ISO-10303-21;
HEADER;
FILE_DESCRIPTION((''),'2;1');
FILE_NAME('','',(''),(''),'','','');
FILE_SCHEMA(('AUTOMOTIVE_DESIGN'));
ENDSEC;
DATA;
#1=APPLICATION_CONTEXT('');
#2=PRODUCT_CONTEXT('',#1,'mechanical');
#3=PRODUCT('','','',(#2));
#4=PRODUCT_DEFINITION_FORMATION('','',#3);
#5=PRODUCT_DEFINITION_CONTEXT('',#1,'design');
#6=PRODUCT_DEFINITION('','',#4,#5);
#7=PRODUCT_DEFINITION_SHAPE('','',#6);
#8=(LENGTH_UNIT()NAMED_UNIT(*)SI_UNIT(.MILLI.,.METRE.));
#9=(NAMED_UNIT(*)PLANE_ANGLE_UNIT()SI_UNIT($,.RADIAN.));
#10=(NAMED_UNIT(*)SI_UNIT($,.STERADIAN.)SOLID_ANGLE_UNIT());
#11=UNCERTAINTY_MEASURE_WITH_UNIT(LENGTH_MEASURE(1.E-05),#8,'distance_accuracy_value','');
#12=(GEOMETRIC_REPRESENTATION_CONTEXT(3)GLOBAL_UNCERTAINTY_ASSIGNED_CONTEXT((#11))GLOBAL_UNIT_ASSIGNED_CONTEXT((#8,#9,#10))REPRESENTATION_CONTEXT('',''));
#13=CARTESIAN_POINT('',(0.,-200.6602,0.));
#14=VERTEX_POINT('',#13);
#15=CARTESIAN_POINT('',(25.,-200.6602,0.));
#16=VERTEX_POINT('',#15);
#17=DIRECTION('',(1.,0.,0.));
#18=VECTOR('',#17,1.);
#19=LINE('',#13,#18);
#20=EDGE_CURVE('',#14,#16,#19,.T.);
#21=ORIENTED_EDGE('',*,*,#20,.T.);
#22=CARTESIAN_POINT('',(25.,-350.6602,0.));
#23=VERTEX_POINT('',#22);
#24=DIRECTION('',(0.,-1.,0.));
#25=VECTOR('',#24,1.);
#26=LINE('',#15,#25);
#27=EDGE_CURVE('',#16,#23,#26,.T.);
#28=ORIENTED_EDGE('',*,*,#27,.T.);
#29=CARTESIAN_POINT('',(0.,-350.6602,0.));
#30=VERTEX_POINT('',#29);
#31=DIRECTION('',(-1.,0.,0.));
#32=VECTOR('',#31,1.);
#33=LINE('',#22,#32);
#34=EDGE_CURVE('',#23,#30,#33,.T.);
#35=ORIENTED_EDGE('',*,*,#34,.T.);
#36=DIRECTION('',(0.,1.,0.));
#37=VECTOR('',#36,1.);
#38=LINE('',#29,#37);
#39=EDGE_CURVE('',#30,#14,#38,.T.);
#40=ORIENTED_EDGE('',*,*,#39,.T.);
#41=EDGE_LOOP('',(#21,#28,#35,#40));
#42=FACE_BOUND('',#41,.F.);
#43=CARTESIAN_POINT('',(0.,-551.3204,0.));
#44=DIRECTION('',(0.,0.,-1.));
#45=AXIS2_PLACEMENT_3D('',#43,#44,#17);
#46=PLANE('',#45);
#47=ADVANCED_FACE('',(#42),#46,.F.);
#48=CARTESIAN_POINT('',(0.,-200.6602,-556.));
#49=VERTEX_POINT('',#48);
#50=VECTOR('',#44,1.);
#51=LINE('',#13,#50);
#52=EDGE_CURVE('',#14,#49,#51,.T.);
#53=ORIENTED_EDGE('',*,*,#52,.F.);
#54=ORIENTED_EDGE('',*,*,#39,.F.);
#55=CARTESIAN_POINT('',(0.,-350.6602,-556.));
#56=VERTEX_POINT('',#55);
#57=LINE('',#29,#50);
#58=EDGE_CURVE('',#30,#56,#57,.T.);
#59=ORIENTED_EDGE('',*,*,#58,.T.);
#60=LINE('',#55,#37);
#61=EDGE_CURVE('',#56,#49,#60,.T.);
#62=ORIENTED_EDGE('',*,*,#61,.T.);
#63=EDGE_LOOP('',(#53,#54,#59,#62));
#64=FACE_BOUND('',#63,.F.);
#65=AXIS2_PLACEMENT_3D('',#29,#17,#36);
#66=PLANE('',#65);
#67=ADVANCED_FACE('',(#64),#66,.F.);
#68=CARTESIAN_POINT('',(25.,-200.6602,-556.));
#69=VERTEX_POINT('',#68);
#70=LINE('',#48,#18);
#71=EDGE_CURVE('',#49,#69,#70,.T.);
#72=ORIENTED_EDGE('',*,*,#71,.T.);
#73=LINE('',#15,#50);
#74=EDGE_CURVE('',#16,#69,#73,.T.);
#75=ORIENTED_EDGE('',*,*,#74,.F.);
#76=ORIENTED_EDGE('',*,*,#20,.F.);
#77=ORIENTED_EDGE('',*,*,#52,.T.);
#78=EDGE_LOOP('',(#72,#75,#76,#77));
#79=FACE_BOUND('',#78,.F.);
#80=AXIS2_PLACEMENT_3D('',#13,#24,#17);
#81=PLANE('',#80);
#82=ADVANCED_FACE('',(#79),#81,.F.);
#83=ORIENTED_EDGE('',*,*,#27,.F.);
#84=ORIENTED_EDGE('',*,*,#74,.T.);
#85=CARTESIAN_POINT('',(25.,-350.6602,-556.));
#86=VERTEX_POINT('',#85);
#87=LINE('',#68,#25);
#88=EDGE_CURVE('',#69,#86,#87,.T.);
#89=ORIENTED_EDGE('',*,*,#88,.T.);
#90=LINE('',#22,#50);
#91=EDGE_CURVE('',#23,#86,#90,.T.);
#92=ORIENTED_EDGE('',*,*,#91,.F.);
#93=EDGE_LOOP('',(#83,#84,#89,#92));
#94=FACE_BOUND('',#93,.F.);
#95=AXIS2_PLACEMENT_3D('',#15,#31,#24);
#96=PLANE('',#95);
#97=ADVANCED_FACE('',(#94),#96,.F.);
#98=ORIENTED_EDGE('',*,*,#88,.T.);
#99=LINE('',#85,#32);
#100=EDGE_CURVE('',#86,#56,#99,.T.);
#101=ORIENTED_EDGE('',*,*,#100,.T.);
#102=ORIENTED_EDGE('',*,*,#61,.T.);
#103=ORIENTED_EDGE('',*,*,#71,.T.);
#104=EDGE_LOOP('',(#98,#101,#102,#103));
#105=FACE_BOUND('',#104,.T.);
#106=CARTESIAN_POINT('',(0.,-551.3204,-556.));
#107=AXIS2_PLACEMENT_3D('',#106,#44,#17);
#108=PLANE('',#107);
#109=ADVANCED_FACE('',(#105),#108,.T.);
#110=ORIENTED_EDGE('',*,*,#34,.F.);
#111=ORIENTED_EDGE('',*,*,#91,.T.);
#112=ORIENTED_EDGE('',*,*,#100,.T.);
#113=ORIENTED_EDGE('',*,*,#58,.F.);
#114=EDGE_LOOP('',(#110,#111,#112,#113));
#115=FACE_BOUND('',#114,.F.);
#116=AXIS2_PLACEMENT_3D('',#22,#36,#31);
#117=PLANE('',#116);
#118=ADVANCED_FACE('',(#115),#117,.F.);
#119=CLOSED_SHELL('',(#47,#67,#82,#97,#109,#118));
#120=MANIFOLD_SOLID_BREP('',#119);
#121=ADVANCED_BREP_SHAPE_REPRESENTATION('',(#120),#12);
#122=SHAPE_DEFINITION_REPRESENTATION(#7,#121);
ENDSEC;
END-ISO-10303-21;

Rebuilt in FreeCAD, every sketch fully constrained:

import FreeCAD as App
import Part
import Sketcher
Q = App.Units.Quantity


def add_polygon(sketch, points):
    """Adds a closed chain of lines whose ends are joined by coincident constraints."""
    first, n = sketch.GeometryCount, len(points)
    for a, b in zip(points, points[1:] + points[:1]):
        sketch.addGeometry(Part.LineSegment(App.Vector(*a, 0), App.Vector(*b, 0)), False)
    for i in range(n):
        sketch.addConstraint(Sketcher.Constraint("Coincident", first + i, 2, first + (i + 1) % n, 1))

doc = App.newDocument("Part")
body = doc.addObject("PartDesign::Body", "Body")

# Sketch on XY plane
sketch1 = doc.addObject("Sketcher::SketchObject", "Sketch")
body.addObject(sketch1)
sketch1.AttachmentSupport = (doc.XY_Plane, [""])
sketch1.MapMode = "FlatFace"
add_polygon(sketch1, [(0, -351), (0, -201), (25, -201), (25, -351)])  # lines 0-3
sketch1.addConstraint([
    Sketcher.Constraint("Vertical", 0),
    Sketcher.Constraint("Horizontal", 1),
    Sketcher.Constraint("Vertical", 2),
    Sketcher.Constraint("Horizontal", 3),
    Sketcher.Constraint("PointOnObject", 0, 2, -2),
    Sketcher.Constraint("DistanceX", 1, 1, 1, 2, Q("25 mm")),
    Sketcher.Constraint("DistanceY", 0, 1, 0, 2, Q("150 mm")),
    Sketcher.Constraint("DistanceY", 0, 2, -1, 1, Q("200.6602 mm")),
])
pad1 = doc.addObject("PartDesign::Pad", "Pad")
body.addObject(pad1)
pad1.Profile = sketch1
pad1.Length = 556
pad1.Reversed = True

doc.recompute()
